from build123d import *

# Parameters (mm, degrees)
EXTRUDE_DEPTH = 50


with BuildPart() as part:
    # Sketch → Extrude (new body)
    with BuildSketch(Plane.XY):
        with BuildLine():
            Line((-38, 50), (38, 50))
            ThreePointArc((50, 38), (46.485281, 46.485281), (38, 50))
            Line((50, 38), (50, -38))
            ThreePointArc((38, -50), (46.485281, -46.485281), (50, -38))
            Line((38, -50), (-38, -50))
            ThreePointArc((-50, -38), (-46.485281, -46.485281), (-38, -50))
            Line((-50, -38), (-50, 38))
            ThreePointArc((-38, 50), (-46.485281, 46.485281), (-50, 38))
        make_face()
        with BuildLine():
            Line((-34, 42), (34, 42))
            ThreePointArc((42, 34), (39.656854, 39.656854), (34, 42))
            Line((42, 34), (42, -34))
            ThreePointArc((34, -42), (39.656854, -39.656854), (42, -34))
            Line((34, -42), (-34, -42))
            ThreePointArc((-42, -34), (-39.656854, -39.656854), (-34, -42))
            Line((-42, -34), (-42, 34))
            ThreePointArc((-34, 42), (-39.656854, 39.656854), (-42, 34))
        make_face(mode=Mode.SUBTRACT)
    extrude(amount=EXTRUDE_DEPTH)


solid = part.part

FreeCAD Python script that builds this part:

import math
import FreeCAD as App
import Part
import Sketcher
from FreeCAD import Vector

doc = App.newDocument("Part")
params = doc.addObject("Spreadsheet::Sheet", "Params")
for row, (alias, value) in enumerate([
    ("sketch1_radius", "12.000001 mm"),
    ("sketch1_radius2", "8.000001 mm"),
    ("sketch1_width", "76 mm"),
    ("sketch1_width2", "68 mm"),
    ("pad1_length", "50 mm"),
], start=1):
    params.set(f"A{row}", alias)
    params.set(f"B{row}", "=" + value)
    params.setAlias(f"B{row}", alias)

body = doc.addObject("PartDesign::Body", "Body")

# Sketch on XY plane
sketch1 = body.newObject("Sketcher::SketchObject", "Sketch")
sketch1.AttachmentSupport = (doc.getObject("XY_Plane"), [""])
sketch1.MapMode = "FlatFace"
sketch1.addGeometry([
    Part.LineSegment(Vector(38, 50, 0), Vector(-38, 50, 0)),  # 0
    Part.ArcOfCircle(Part.Circle(Vector(-37.999999, 37.999999, 0), Vector(0, 0, 1), 12.000001), math.radians(90.000006), math.radians(179.999994)),  # 1
    Part.LineSegment(Vector(-50, 38, 0), Vector(-50, -38, 0)),  # 2
    Part.ArcOfCircle(Part.Circle(Vector(-37.999999, -37.999999, 0), Vector(0, 0, 1), 12.000001), math.radians(-179.999994), math.radians(-90.000006)),  # 3
    Part.LineSegment(Vector(-38, -50, 0), Vector(38, -50, 0)),  # 4
    Part.ArcOfCircle(Part.Circle(Vector(37.999999, -37.999999, 0), Vector(0, 0, 1), 12.000001), math.radians(-89.999994), math.radians(-0.000006)),  # 5
    Part.LineSegment(Vector(50, -38, 0), Vector(50, 38, 0)),  # 6
    Part.ArcOfCircle(Part.Circle(Vector(37.999999, 37.999999, 0), Vector(0, 0, 1), 12.000001), math.radians(0.000006), math.radians(89.999994)),  # 7
    Part.LineSegment(Vector(-34, 42, 0), Vector(34, 42, 0)),  # 8
    Part.ArcOfCircle(Part.Circle(Vector(33.999999, 33.999999, 0), Vector(0, 0, 1), 8.000001), math.radians(0.000006), math.radians(89.999994)),  # 9
    Part.LineSegment(Vector(42, 34, 0), Vector(42, -34, 0)),  # 10
    Part.ArcOfCircle(Part.Circle(Vector(33.999999, -33.999999, 0), Vector(0, 0, 1), 8.000001), math.radians(-89.999994), math.radians(-0.000006)),  # 11
    Part.LineSegment(Vector(34, -42, 0), Vector(-34, -42, 0)),  # 12
    Part.ArcOfCircle(Part.Circle(Vector(-33.999999, -33.999999, 0), Vector(0, 0, 1), 8.000001), math.radians(-179.999994), math.radians(-90.000006)),  # 13
    Part.LineSegment(Vector(-42, -34, 0), Vector(-42, 34, 0)),  # 14
    Part.ArcOfCircle(Part.Circle(Vector(-33.999999, 33.999999, 0), Vector(0, 0, 1), 8.000001), math.radians(90.000006), math.radians(179.999994)),  # 15
], False)
sketch1.addConstraint([
    Sketcher.Constraint("Tangent", 0, 2, 1, 1),
    Sketcher.Constraint("Tangent", 1, 2, 2, 1),
    Sketcher.Constraint("Tangent", 2, 2, 3, 1),
    Sketcher.Constraint("Tangent", 3, 2, 4, 1),
    Sketcher.Constraint("Tangent", 4, 2, 5, 1),
    Sketcher.Constraint("Tangent", 5, 2, 6, 1),
    Sketcher.Constraint("Tangent", 6, 2, 7, 1),
    Sketcher.Constraint("Tangent", 7, 2, 0, 1),
    Sketcher.Constraint("Tangent", 8, 2, 9, 2),
    Sketcher.Constraint("Tangent", 9, 1, 10, 1),
    Sketcher.Constraint("Tangent", 10, 2, 11, 2),
    Sketcher.Constraint("Tangent", 11, 1, 12, 1),
    Sketcher.Constraint("Tangent", 12, 2, 13, 2),
    Sketcher.Constraint("Tangent", 13, 1, 14, 1),
    Sketcher.Constraint("Tangent", 14, 2, 15, 2),
    Sketcher.Constraint("Tangent", 15, 1, 8, 1),
    Sketcher.Constraint("Horizontal", 0),
    Sketcher.Constraint("Vertical", 2),
    Sketcher.Constraint("Horizontal", 4),
    Sketcher.Constraint("Vertical", 6),
    Sketcher.Constraint("Horizontal", 8),
    Sketcher.Constraint("Vertical", 10),
    Sketcher.Constraint("Horizontal", 12),
    Sketcher.Constraint("Vertical", 14),
    Sketcher.Constraint("Equal", 1, 3),
    Sketcher.Constraint("Equal", 3, 5),
    Sketcher.Constraint("Equal", 5, 7),
    Sketcher.Constraint("Equal", 9, 11),
    Sketcher.Constraint("Equal", 11, 13),
    Sketcher.Constraint("Equal", 13, 15),
    Sketcher.Constraint("Symmetric", 1, 3, 5, 3, -1, 1),
    Sketcher.Constraint("Symmetric", 9, 3, 13, 3, -1, 1),
    Sketcher.Constraint("Equal", 4, 2),
    Sketcher.Constraint("Equal", 12, 10),
    Sketcher.Constraint("Radius", 1, 12.000001),
    Sketcher.Constraint("Radius", 9, 8.000001),
    Sketcher.Constraint("DistanceX", 0, 2, 0, 1, 76.0),
    Sketcher.Constraint("DistanceX", 8, 1, 8, 2, 68.0),
])
sketch1.setExpression("Constraints[34]", "Params.sketch1_radius")
sketch1.setExpression("Constraints[35]", "Params.sketch1_radius2")
sketch1.setExpression("Constraints[36]", "Params.sketch1_width")
sketch1.setExpression("Constraints[37]", "Params.sketch1_width2")
pad1 = body.newObject("PartDesign::Pad", "Pad")
pad1.Profile = sketch1
pad1.setExpression("Length", "Params.pad1_length")

doc.recompute()
